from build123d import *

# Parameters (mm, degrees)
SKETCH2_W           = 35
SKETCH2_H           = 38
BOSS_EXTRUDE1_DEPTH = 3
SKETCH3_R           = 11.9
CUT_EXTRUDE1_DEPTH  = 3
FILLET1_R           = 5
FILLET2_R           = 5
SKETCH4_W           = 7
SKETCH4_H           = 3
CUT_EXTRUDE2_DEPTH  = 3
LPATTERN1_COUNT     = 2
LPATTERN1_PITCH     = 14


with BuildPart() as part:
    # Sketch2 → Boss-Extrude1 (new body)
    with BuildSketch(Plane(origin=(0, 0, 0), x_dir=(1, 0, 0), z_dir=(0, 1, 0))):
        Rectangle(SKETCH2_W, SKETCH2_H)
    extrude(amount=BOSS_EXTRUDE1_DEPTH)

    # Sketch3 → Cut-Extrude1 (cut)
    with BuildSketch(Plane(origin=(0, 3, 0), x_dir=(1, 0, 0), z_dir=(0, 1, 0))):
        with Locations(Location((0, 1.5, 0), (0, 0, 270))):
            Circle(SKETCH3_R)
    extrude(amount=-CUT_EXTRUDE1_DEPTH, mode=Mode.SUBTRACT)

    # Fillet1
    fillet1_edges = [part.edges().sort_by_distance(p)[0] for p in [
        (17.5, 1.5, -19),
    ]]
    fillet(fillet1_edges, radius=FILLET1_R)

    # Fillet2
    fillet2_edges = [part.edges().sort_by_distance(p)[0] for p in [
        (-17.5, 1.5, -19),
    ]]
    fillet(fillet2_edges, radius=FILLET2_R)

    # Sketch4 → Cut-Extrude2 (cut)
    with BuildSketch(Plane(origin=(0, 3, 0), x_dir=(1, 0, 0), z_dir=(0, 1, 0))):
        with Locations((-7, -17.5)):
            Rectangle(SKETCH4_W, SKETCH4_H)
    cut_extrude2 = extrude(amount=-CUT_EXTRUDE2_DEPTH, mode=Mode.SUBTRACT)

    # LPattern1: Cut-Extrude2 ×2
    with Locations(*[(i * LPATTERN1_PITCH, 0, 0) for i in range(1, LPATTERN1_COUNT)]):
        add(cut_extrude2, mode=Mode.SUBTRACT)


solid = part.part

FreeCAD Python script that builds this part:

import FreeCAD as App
import Part
import Sketcher


def edges_at(feature, points):
    """Names of the edges that pass closest to the given points."""
    edges = feature.Shape.Edges
    near = lambda p: min(range(len(edges)), key=lambda i: edges[i].distToShape(Part.Vertex(*p))[0])
    return sorted({f"Edge{near(p) + 1}" for p in points})

doc = App.newDocument("Part")
body = doc.addObject("PartDesign::Body", "Body")

# Sketch on XZ plane
sketch1 = doc.addObject("Sketcher::SketchObject", "Sketch")
body.addObject(sketch1)
sketch1.AttachmentSupport = (doc.XZ_Plane, [""])
sketch1.MapMode = "FlatFace"
sketch1.addGeometry([
    Part.LineSegment(App.Vector(-17.5, -19, 0), App.Vector(-17.5, 19, 0)),
    Part.LineSegment(App.Vector(-17.5, 19, 0), App.Vector(17.5, 19, 0)),
    Part.LineSegment(App.Vector(17.5, 19, 0), App.Vector(17.5, -19, 0)),
    Part.LineSegment(App.Vector(17.5, -19, 0), App.Vector(-17.5, -19, 0)),
], False)
sketch1.addConstraint([
    Sketcher.Constraint("Coincident", 0, 2, 1, 1),
    Sketcher.Constraint("Coincident", 1, 2, 2, 1),
    Sketcher.Constraint("Coincident", 2, 2, 3, 1),
    Sketcher.Constraint("Coincident", 3, 2, 0, 1),
    Sketcher.Constraint("Vertical", 0),
    Sketcher.Constraint("Horizontal", 1),
    Sketcher.Constraint("Vertical", 2),
    Sketcher.Constraint("Horizontal", 3),
    Sketcher.Constraint("Symmetric", 0, 2, 2, 2, -1, 1),
    Sketcher.Constraint("DistanceX", 1, 1, 1, 2, 35.0),
    Sketcher.Constraint("DistanceY", 0, 1, 0, 2, 38.0),
])
pad1 = doc.addObject("PartDesign::Pad", "Pad")
body.addObject(pad1)
pad1.Profile = sketch1
pad1.Length = 3
pad1.Reversed = True

# Sketch on XZ plane
sketch2 = doc.addObject("Sketcher::SketchObject", "Sketch001")
body.addObject(sketch2)
sketch2.AttachmentSupport = (doc.XZ_Plane, [""])
sketch2.MapMode = "FlatFace"
sketch2.AttachmentOffset = App.Placement(App.Vector(0, 0, -3), App.Rotation())
sketch2.addGeometry(Part.Circle(App.Vector(0, -1.5, 0), App.Vector(0, 0, 1), 11.9), False)
sketch2.addConstraint([
    Sketcher.Constraint("PointOnObject", 0, 3, -2),
    Sketcher.Constraint("Diameter", 0, 23.8),
    Sketcher.Constraint("DistanceY", 0, 3, -1, 1, 1.5),
])
pocket1 = doc.addObject("PartDesign::Pocket", "Pocket")
body.addObject(pocket1)
pocket1.Profile = sketch2
pocket1.Length = 3
pocket1.Reversed = True
doc.recompute()

fillet = doc.addObject("PartDesign::Fillet", "Fillet")
body.addObject(fillet)
fillet.Base = (pocket1, edges_at(pocket1, [(17.5, 1.5, -19)]))
fillet.Radius = 5
doc.recompute()

fillet2 = doc.addObject("PartDesign::Fillet", "Fillet001")
body.addObject(fillet2)
fillet2.Base = (fillet, edges_at(fillet, [(-17.5, 1.5, -19)]))
fillet2.Radius = 5

# Sketch on XZ plane
sketch3 = doc.addObject("Sketcher::SketchObject", "Sketch002")
body.addObject(sketch3)
sketch3.AttachmentSupport = (doc.XZ_Plane, [""])
sketch3.MapMode = "FlatFace"
sketch3.AttachmentOffset = App.Placement(App.Vector(0, 0, -3), App.Rotation())
sketch3.addGeometry([
    Part.LineSegment(App.Vector(-10.5, 16, 0), App.Vector(-10.5, 19, 0)),
    Part.LineSegment(App.Vector(-10.5, 19, 0), App.Vector(-3.5, 19, 0)),
    Part.LineSegment(App.Vector(-3.5, 19, 0), App.Vector(-3.5, 16, 0)),
    Part.LineSegment(App.Vector(-3.5, 16, 0), App.Vector(-10.5, 16, 0)),
], False)
sketch3.addConstraint([
    Sketcher.Constraint("Coincident", 0, 2, 1, 1),
    Sketcher.Constraint("Coincident", 1, 2, 2, 1),
    Sketcher.Constraint("Coincident", 2, 2, 3, 1),
    Sketcher.Constraint("Coincident", 3, 2, 0, 1),
    Sketcher.Constraint("Vertical", 0),
    Sketcher.Constraint("Horizontal", 1),
    Sketcher.Constraint("Vertical", 2),
    Sketcher.Constraint("Horizontal", 3),
    Sketcher.Constraint("DistanceX", 1, 1, 1, 2, 7.0),
    Sketcher.Constraint("DistanceY", 0, 1, 0, 2, 3.0),
    Sketcher.Constraint("DistanceY", -1, 1, 0, 2, 19.0),
    Sketcher.Constraint("DistanceX", 0, 2, -1, 1, 10.5),
])
pocket2 = doc.addObject("PartDesign::Pocket", "Pocket001")
body.addObject(pocket2)
pocket2.Profile = sketch3
pocket2.Length = 3
pocket2.Reversed = True
doc.recompute()

linearpattern = doc.addObject("PartDesign::LinearPattern", "LinearPattern")
body.addObject(linearpattern)
linearpattern.Originals = [pocket2]
linearpattern.Direction = (doc.X_Axis, [""])
linearpattern.Mode = "offset"
linearpattern.Offset = 14
linearpattern.Occurrences = 2
body.Tip = linearpattern

doc.recompute()
